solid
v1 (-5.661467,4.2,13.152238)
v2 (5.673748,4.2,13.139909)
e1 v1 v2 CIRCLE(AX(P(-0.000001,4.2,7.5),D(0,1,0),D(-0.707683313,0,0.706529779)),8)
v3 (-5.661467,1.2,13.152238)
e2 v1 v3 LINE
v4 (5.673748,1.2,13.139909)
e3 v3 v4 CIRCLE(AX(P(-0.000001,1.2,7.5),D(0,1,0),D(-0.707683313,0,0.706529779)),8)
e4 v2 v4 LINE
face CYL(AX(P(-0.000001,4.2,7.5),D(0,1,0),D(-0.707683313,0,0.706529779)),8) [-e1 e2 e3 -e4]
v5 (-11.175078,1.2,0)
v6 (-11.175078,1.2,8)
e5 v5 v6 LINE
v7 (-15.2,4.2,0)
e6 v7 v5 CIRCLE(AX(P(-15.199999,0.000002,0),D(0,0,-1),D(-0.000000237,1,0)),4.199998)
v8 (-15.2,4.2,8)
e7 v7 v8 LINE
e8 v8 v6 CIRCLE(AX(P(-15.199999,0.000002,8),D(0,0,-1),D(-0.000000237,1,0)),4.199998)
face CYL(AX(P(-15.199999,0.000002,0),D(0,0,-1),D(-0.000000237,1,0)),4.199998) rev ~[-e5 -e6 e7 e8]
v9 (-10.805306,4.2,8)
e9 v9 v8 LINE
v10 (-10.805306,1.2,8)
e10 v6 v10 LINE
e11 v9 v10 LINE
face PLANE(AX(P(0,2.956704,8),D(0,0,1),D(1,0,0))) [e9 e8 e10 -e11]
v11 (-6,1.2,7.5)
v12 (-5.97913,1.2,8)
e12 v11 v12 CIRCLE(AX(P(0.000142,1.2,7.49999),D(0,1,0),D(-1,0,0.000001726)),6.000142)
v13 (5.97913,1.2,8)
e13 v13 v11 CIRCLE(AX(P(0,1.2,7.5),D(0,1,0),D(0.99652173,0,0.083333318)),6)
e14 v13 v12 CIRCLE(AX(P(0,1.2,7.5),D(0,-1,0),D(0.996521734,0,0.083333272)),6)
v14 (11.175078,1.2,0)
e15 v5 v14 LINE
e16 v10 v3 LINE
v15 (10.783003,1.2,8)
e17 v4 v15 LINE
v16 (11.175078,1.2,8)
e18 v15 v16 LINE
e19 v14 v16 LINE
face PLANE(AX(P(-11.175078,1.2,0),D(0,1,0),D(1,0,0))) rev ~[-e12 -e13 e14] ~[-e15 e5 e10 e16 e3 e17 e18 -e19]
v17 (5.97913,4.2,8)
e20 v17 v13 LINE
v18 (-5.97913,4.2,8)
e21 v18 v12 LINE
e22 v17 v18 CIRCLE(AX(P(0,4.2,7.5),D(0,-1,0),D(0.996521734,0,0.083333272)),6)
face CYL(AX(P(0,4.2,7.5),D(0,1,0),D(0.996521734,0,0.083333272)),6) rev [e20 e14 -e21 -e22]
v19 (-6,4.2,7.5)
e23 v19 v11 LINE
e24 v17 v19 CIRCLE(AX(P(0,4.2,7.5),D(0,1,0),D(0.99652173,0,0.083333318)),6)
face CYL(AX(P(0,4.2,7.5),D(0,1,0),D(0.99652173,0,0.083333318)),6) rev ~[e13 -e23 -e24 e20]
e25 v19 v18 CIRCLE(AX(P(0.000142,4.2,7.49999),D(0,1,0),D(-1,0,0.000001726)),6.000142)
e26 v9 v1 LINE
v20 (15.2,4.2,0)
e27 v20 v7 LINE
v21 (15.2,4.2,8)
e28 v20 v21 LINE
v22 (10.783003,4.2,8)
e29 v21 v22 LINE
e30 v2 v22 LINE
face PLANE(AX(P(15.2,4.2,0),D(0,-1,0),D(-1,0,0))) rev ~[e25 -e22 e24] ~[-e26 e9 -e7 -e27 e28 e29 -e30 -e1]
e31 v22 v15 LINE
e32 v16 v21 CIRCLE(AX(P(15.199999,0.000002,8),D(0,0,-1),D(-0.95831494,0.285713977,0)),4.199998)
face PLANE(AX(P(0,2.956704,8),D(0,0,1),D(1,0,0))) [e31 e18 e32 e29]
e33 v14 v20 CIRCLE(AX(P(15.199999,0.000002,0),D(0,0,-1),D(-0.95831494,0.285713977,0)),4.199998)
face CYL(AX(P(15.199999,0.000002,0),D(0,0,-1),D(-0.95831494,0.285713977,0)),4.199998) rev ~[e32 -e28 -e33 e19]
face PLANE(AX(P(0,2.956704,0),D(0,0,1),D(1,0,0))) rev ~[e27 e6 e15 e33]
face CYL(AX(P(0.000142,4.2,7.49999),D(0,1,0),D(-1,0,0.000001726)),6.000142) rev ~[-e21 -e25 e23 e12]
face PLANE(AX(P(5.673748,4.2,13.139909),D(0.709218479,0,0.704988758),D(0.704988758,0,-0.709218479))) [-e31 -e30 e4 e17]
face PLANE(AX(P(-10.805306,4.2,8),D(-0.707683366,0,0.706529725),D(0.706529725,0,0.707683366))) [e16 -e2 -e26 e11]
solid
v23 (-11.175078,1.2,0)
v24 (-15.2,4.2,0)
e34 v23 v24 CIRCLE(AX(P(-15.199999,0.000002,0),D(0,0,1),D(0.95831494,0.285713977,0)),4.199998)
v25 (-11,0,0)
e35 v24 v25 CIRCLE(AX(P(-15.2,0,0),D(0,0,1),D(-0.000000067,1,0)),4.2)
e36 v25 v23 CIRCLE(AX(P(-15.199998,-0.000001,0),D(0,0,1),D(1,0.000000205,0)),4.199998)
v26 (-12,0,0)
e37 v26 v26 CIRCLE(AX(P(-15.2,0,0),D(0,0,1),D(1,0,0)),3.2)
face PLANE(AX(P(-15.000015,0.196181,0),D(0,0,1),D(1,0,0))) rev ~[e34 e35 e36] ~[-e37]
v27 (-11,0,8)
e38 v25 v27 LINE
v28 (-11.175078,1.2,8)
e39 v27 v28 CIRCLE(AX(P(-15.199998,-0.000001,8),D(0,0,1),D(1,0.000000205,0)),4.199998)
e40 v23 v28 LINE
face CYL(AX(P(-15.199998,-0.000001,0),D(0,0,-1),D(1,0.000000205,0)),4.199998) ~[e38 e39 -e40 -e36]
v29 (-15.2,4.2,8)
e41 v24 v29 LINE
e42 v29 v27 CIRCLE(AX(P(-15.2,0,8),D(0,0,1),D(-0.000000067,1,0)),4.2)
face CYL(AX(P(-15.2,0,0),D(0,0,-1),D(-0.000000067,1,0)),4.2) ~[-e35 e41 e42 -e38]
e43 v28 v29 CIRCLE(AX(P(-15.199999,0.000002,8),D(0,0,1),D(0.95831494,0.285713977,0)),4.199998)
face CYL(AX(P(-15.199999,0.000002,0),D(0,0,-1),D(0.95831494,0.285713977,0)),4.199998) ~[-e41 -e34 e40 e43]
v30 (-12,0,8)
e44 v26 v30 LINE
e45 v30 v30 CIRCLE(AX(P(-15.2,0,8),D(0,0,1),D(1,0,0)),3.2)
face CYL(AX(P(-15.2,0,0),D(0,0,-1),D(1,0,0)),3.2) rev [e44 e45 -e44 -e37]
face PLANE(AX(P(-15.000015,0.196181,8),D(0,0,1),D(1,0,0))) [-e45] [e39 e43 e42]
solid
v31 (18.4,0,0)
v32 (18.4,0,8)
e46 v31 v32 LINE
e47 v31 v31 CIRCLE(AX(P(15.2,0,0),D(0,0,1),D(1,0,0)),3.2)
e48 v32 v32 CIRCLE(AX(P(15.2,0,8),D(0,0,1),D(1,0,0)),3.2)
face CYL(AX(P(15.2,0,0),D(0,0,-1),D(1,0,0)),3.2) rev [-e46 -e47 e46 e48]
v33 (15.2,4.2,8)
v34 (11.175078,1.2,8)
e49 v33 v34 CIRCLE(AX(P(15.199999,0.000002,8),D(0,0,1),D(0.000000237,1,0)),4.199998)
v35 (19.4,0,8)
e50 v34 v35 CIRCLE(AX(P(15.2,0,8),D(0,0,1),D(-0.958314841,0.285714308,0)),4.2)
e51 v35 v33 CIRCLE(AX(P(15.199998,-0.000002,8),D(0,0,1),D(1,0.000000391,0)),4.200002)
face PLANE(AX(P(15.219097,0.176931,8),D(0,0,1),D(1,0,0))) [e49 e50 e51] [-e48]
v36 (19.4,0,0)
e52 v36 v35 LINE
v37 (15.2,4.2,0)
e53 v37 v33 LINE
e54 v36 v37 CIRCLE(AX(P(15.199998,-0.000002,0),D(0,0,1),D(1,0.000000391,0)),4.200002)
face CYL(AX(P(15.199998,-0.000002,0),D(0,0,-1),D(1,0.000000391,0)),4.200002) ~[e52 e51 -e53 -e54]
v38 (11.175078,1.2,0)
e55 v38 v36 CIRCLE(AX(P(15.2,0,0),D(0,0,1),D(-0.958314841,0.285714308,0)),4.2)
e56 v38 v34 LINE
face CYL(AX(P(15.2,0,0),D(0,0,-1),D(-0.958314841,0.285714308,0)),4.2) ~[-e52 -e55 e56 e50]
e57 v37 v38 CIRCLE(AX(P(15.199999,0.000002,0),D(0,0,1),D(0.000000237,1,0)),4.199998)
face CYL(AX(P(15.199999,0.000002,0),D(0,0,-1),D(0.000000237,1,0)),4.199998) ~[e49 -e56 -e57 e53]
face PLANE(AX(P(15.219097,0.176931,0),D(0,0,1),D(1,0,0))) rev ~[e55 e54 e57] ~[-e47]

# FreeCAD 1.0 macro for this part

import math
import FreeCAD as App
import Part
import Sketcher

doc = App.newDocument("Part")
body = doc.addObject("PartDesign::Body", "Body")
body.AllowCompound = True

# Sketch on XY plane
sketch1 = doc.addObject("Sketcher::SketchObject", "Sketch")
body.addObject(sketch1)
sketch1.AttachmentSupport = (doc.XY_Plane, [""])
sketch1.MapMode = "FlatFace"
sketch1.addGeometry([
    Part.ArcOfCircle(Part.Circle(App.Vector(-15.2, 0, 0), App.Vector(0, 0, 1), 4.2), math.radians(17), math.radians(90)),  # 0
    Part.ArcOfCircle(Part.Circle(App.Vector(-15.2, 0, 0), App.Vector(0, 0, 1), 4.2), math.radians(90), math.radians(360)),  # 1
    Part.ArcOfCircle(Part.Circle(App.Vector(-15.2, 0, 0), App.Vector(0, 0, 1), 4.2), math.radians(0), math.radians(16.6)),  # 2
    Part.Circle(App.Vector(-15.2, 0, 0), App.Vector(0, 0, 1), 3.2),  # 3
    Part.ArcOfCircle(Part.Circle(App.Vector(15.2, 0, 0), App.Vector(0, 0, 1), 4.2), math.radians(0), math.radians(90)),  # 4
    Part.ArcOfCircle(Part.Circle(App.Vector(15.2, 0, 0), App.Vector(0, 0, 1), 4.2), math.radians(90), math.radians(163)),  # 5
    Part.ArcOfCircle(Part.Circle(App.Vector(15.2, 0, 0), App.Vector(0, 0, 1), 4.2), math.radians(163), math.radians(360)),  # 6
    Part.Circle(App.Vector(15.2, 0, 0), App.Vector(0, 0, 1), 3.2),  # 7
], False)
sketch1.addConstraint([
    Sketcher.Constraint("Tangent", 0, 2, 1, 1),
    Sketcher.Constraint("Tangent", 1, 2, 2, 1),
    Sketcher.Constraint("Tangent", 2, 2, 0, 1),
    Sketcher.Constraint("Tangent", 4, 2, 5, 1),
    Sketcher.Constraint("Tangent", 5, 2, 6, 1),
    Sketcher.Constraint("Tangent", 6, 2, 4, 1),
    Sketcher.Constraint("Coincident", 3, 3, 0, 3),
    Sketcher.Constraint("Coincident", 7, 3, 4, 3),
    Sketcher.Constraint("Equal", 1, 4),
    Sketcher.Constraint("Equal", 3, 7),
    Sketcher.Constraint("Symmetric", 0, 3, 4, 3, -1, 1),
    Sketcher.Constraint("Symmetric", 0, 2, 4, 2, -2),
    Sketcher.Constraint("PointOnObject", 1, 2, -1),
    Sketcher.Constraint("PointOnObject", 6, 2, -1),
    Sketcher.Constraint("Horizontal", 2, 2, 5, 2),
    Sketcher.Constraint("Vertical", 3, 3, 0, 2),
    Sketcher.Constraint("Diameter", 3, 6.4),
    Sketcher.Constraint("Radius", 0, 4.199998),
    Sketcher.Constraint("DistanceX", 1, 2, -1, 1, 11.0),
    Sketcher.Constraint("DistanceY", 5, 2, 4, 2, 3.0),
])
pad1 = doc.addObject("PartDesign::Pad", "Pad")
body.addObject(pad1)
pad1.Profile = sketch1
pad1.Length = 8
body2 = doc.addObject("PartDesign::Body", "Body001")

# Sketch on XY plane
sketch2 = doc.addObject("Sketcher::SketchObject", "Sketch001")
body2.addObject(sketch2)
sketch2.AttachmentSupport = (doc.getObject("XY_Plane001"), [""])
sketch2.MapMode = "FlatFace"
sketch2.addGeometry([
    Part.ArcOfCircle(Part.Circle(App.Vector(15.2, 0, 0), App.Vector(0, 0, 1), 4.2), math.radians(90), math.radians(163)),
    Part.LineSegment(App.Vector(15.2, 4.2, 0), App.Vector(-15.2, 4.2, 0)),
    Part.ArcOfCircle(Part.Circle(App.Vector(-15.2, 0, 0), App.Vector(0, 0, 1), 4.2), math.radians(17), math.radians(90)),
    Part.LineSegment(App.Vector(-11.2, 1.2, 0), App.Vector(11.2, 1.2, 0)),
], False)
sketch2.addConstraint([
    Sketcher.Constraint("Tangent", 0, 1, 1, 1),
    Sketcher.Constraint("Tangent", 1, 2, 2, 2),
    Sketcher.Constraint("Coincident", 2, 1, 3, 1),
    Sketcher.Constraint("Coincident", 3, 2, 0, 2),
    Sketcher.Constraint("Horizontal", 1),
    Sketcher.Constraint("Horizontal", 3),
    Sketcher.Constraint("Equal", 0, 2),
    Sketcher.Constraint("Symmetric", 0, 3, 2, 3, -1, 1),
    Sketcher.Constraint("Radius", 0, 4.199998),
    Sketcher.Constraint("DistanceX", 1, 2, 1, 1, 30.4),
    Sketcher.Constraint("DistanceY", 2, 1, 1, 2, 3.0),
])
pad2 = doc.addObject("PartDesign::Pad", "Pad001")
body2.addObject(pad2)
pad2.Profile = sketch2
pad2.Length = 8

# Sketch on XZ plane
sketch3 = doc.addObject("Sketcher::SketchObject", "Sketch002")
body2.addObject(sketch3)
sketch3.AttachmentSupport = (doc.getObject("XZ_Plane001"), [""])
sketch3.MapMode = "FlatFace"
sketch3.AttachmentOffset = App.Placement(App.Vector(0, 0, -4.2), App.Rotation())
sketch3.addGeometry([
    Part.ArcOfCircle(Part.Circle(App.Vector(0, 7.5, 0), App.Vector(0, 0, 1), 6), math.radians(5), math.radians(175)),  # 0
    Part.LineSegment(App.Vector(-6, 8, 0), App.Vector(-10.8, 8, 0)),  # 1
    Part.LineSegment(App.Vector(-10.8, 8, 0), App.Vector(-5.7, 13.2, 0)),  # 2
    Part.ArcOfCircle(Part.Circle(App.Vector(0, 7.5, 0), App.Vector(0, 0, 1), 8), math.radians(45), math.radians(135)),  # 3
    Part.LineSegment(App.Vector(5.7, 13.1, 0), App.Vector(10.8, 8, 0)),  # 4
    Part.LineSegment(App.Vector(10.8, 8, 0), App.Vector(6, 8, 0)),  # 5
], False)
sketch3.addConstraint([
    Sketcher.Constraint("Coincident", 0, 2, 1, 1),
    Sketcher.Constraint("Coincident", 1, 2, 2, 1),
    Sketcher.Constraint("Tangent", 2, 2, 3, 2),
    Sketcher.Constraint("Tangent", 3, 1, 4, 1),
    Sketcher.Constraint("Coincident", 4, 2, 5, 1),
    Sketcher.Constraint("Coincident", 5, 2, 0, 1),
    Sketcher.Constraint("Horizontal", 1),
    Sketcher.Constraint("Horizontal", 5),
    Sketcher.Constraint("Coincident", 3, 3, 0, 3),
    Sketcher.Constraint("Symmetric", 0, 2, 5, 2, -2),
    Sketcher.Constraint("Radius", 0, 6.0),
    Sketcher.Constraint("Radius", 3, 8.0),
    Sketcher.Constraint("DistanceY", -1, 1, 0, 2, 8.0),
    Sketcher.Constraint("DistanceY", -1, 1, 0, 3, 7.5),
    Sketcher.Constraint("Distance", 2, 7.280428),
    Sketcher.Constraint("DistanceX", 5, 2, 5, 1, 4.803873),
])
pad3 = doc.addObject("PartDesign::Pad", "Pad002")
body2.addObject(pad3)
pad3.Profile = sketch3
pad3.Length = 3

# Sketch on XZ plane
sketch4 = doc.addObject("Sketcher::SketchObject", "Sketch003")
body2.addObject(sketch4)
sketch4.AttachmentSupport = (doc.getObject("XZ_Plane001"), [""])
sketch4.MapMode = "FlatFace"
sketch4.AttachmentOffset = App.Placement(App.Vector(0, 0, -4.2), App.Rotation())
sketch4.addGeometry([
    Part.ArcOfCircle(Part.Circle(App.Vector(0, 7.5, 0), App.Vector(0, 0, 1), 6), math.radians(-180), math.radians(5)),
    Part.ArcOfCircle(Part.Circle(App.Vector(0, 7.5, 0), App.Vector(0, 0, 1), 6), math.radians(175.22), math.radians(180)),
    Part.LineSegment(App.Vector(-6, 8, 0), App.Vector(6, 8, 0)),
], False)
sketch4.addConstraint([
    Sketcher.Constraint("Tangent", 0, 1, 1, 2),
    Sketcher.Constraint("Coincident", 1, 1, 2, 1),
    Sketcher.Constraint("Coincident", 2, 2, 0, 2),
    Sketcher.Constraint("Horizontal", 2),
    Sketcher.Constraint("PointOnObject", 0, 3, -2),
    Sketcher.Constraint("Radius", 0, 6.0),
    Sketcher.Constraint("DistanceY", -1, 1, 1, 1, 8.0),
    Sketcher.Constraint("DistanceY", -1, 1, 0, 3, 7.5),
    Sketcher.Constraint("DistanceY", -1, 1, 0, 1, 7.5),
    Sketcher.Constraint("Radius", 1, 6.000142),
])
pocket1 = doc.addObject("PartDesign::Pocket", "Pocket")
body2.addObject(pocket1)
pocket1.Profile = sketch4
pocket1.Length = 3
pocket1.Reversed = True

doc.recompute()
